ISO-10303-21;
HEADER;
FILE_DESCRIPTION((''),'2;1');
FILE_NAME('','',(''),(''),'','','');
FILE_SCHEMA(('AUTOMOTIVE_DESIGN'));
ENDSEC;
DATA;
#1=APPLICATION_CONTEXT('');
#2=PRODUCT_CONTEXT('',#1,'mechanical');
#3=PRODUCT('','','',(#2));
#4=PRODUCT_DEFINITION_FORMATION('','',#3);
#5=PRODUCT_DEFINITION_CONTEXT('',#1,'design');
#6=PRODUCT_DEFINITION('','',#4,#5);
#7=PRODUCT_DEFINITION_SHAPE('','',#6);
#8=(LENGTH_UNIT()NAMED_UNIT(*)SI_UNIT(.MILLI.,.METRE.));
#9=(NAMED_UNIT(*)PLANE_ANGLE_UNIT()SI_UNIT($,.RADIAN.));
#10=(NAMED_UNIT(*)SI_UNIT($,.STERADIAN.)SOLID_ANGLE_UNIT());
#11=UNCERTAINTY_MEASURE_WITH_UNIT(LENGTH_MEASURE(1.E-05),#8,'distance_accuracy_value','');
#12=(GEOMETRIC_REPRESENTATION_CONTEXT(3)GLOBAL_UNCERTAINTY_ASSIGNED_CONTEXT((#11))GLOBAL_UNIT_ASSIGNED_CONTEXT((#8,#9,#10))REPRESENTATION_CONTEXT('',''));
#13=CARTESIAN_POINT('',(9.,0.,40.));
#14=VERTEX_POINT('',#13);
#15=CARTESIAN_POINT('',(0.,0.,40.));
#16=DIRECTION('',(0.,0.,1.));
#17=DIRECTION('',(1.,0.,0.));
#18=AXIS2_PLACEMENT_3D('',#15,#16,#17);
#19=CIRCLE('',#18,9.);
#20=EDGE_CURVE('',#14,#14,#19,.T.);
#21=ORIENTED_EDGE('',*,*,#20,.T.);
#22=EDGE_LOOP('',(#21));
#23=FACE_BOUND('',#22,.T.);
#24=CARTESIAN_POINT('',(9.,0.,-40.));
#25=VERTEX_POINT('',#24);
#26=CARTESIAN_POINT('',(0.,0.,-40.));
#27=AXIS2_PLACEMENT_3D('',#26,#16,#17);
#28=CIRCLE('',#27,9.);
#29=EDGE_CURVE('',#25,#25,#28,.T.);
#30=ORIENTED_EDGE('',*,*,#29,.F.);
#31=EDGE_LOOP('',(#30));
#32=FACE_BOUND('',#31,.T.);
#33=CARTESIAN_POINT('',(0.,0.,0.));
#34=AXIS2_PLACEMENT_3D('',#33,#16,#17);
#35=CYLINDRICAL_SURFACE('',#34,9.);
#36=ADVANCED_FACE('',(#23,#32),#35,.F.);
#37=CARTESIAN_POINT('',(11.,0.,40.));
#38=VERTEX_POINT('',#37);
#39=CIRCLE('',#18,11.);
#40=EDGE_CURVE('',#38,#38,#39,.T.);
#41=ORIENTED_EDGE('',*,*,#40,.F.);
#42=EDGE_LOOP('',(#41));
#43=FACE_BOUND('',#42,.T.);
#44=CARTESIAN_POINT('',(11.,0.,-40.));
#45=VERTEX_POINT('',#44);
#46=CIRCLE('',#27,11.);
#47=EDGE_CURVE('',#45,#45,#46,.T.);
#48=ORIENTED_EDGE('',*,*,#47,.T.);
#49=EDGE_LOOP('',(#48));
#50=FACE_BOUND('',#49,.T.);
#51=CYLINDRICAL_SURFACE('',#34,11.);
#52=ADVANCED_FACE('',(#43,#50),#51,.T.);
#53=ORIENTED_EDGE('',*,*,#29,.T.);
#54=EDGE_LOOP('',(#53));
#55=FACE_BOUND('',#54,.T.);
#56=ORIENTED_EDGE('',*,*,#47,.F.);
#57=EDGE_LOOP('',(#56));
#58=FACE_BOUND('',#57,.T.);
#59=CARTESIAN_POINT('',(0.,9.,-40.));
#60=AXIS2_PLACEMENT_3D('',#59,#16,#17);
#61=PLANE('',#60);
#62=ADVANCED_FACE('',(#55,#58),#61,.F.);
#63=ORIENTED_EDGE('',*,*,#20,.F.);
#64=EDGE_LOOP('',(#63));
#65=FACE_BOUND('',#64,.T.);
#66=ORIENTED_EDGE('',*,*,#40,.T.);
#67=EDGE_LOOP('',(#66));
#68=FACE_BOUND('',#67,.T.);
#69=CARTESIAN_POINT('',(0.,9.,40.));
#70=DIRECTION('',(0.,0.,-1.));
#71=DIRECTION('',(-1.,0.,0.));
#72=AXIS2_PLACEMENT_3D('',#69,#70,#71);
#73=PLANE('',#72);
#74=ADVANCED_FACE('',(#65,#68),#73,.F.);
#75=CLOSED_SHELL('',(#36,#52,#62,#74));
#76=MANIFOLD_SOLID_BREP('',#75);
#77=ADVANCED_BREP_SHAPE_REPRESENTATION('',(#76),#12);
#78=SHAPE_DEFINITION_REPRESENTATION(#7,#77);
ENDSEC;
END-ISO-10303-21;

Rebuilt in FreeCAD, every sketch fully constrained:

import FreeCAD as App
import Part
import Sketcher


def add_polygon(sketch, points):
    """Adds a closed chain of lines whose ends are joined by coincident constraints."""
    first, n = sketch.GeometryCount, len(points)
    for a, b in zip(points, points[1:] + points[:1]):
        sketch.addGeometry(Part.LineSegment(App.Vector(*a, 0), App.Vector(*b, 0)), False)
    for i in range(n):
        sketch.addConstraint(Sketcher.Constraint("Coincident", first + i, 2, first + (i + 1) % n, 1))

doc = App.newDocument("Part")
body = doc.addObject("PartDesign::Body", "Body")

# Sketch on YZ plane
sketch1 = doc.addObject("Sketcher::SketchObject", "Sketch")
body.addObject(sketch1)
sketch1.AttachmentSupport = (doc.YZ_Plane, [""])
sketch1.MapMode = "FlatFace"
add_polygon(sketch1, [(11, 40), (9, 40), (9, -40), (11, -40)])  # lines 0-3
sketch1.addConstraint([
    Sketcher.Constraint("Horizontal", 0),
    Sketcher.Constraint("Vertical", 1),
    Sketcher.Constraint("Horizontal", 2),
    Sketcher.Constraint("Vertical", 3),
    Sketcher.Constraint("DistanceX", 0, 2, 0, 1, 2.0),
    Sketcher.Constraint("DistanceY", 1, 2, 1, 1, 80.0),
    Sketcher.Constraint("DistanceX", -1, 1, 0, 2, 9.0),
    Sketcher.Constraint("DistanceY", -1, 1, 0, 2, 40.0),
])
revolution = doc.addObject("PartDesign::Revolution", "Revolution")
body.addObject(revolution)
revolution.Profile = sketch1
revolution.ReferenceAxis = (sketch1, ["V_Axis"])
revolution.Angle = 360

doc.recompute()
